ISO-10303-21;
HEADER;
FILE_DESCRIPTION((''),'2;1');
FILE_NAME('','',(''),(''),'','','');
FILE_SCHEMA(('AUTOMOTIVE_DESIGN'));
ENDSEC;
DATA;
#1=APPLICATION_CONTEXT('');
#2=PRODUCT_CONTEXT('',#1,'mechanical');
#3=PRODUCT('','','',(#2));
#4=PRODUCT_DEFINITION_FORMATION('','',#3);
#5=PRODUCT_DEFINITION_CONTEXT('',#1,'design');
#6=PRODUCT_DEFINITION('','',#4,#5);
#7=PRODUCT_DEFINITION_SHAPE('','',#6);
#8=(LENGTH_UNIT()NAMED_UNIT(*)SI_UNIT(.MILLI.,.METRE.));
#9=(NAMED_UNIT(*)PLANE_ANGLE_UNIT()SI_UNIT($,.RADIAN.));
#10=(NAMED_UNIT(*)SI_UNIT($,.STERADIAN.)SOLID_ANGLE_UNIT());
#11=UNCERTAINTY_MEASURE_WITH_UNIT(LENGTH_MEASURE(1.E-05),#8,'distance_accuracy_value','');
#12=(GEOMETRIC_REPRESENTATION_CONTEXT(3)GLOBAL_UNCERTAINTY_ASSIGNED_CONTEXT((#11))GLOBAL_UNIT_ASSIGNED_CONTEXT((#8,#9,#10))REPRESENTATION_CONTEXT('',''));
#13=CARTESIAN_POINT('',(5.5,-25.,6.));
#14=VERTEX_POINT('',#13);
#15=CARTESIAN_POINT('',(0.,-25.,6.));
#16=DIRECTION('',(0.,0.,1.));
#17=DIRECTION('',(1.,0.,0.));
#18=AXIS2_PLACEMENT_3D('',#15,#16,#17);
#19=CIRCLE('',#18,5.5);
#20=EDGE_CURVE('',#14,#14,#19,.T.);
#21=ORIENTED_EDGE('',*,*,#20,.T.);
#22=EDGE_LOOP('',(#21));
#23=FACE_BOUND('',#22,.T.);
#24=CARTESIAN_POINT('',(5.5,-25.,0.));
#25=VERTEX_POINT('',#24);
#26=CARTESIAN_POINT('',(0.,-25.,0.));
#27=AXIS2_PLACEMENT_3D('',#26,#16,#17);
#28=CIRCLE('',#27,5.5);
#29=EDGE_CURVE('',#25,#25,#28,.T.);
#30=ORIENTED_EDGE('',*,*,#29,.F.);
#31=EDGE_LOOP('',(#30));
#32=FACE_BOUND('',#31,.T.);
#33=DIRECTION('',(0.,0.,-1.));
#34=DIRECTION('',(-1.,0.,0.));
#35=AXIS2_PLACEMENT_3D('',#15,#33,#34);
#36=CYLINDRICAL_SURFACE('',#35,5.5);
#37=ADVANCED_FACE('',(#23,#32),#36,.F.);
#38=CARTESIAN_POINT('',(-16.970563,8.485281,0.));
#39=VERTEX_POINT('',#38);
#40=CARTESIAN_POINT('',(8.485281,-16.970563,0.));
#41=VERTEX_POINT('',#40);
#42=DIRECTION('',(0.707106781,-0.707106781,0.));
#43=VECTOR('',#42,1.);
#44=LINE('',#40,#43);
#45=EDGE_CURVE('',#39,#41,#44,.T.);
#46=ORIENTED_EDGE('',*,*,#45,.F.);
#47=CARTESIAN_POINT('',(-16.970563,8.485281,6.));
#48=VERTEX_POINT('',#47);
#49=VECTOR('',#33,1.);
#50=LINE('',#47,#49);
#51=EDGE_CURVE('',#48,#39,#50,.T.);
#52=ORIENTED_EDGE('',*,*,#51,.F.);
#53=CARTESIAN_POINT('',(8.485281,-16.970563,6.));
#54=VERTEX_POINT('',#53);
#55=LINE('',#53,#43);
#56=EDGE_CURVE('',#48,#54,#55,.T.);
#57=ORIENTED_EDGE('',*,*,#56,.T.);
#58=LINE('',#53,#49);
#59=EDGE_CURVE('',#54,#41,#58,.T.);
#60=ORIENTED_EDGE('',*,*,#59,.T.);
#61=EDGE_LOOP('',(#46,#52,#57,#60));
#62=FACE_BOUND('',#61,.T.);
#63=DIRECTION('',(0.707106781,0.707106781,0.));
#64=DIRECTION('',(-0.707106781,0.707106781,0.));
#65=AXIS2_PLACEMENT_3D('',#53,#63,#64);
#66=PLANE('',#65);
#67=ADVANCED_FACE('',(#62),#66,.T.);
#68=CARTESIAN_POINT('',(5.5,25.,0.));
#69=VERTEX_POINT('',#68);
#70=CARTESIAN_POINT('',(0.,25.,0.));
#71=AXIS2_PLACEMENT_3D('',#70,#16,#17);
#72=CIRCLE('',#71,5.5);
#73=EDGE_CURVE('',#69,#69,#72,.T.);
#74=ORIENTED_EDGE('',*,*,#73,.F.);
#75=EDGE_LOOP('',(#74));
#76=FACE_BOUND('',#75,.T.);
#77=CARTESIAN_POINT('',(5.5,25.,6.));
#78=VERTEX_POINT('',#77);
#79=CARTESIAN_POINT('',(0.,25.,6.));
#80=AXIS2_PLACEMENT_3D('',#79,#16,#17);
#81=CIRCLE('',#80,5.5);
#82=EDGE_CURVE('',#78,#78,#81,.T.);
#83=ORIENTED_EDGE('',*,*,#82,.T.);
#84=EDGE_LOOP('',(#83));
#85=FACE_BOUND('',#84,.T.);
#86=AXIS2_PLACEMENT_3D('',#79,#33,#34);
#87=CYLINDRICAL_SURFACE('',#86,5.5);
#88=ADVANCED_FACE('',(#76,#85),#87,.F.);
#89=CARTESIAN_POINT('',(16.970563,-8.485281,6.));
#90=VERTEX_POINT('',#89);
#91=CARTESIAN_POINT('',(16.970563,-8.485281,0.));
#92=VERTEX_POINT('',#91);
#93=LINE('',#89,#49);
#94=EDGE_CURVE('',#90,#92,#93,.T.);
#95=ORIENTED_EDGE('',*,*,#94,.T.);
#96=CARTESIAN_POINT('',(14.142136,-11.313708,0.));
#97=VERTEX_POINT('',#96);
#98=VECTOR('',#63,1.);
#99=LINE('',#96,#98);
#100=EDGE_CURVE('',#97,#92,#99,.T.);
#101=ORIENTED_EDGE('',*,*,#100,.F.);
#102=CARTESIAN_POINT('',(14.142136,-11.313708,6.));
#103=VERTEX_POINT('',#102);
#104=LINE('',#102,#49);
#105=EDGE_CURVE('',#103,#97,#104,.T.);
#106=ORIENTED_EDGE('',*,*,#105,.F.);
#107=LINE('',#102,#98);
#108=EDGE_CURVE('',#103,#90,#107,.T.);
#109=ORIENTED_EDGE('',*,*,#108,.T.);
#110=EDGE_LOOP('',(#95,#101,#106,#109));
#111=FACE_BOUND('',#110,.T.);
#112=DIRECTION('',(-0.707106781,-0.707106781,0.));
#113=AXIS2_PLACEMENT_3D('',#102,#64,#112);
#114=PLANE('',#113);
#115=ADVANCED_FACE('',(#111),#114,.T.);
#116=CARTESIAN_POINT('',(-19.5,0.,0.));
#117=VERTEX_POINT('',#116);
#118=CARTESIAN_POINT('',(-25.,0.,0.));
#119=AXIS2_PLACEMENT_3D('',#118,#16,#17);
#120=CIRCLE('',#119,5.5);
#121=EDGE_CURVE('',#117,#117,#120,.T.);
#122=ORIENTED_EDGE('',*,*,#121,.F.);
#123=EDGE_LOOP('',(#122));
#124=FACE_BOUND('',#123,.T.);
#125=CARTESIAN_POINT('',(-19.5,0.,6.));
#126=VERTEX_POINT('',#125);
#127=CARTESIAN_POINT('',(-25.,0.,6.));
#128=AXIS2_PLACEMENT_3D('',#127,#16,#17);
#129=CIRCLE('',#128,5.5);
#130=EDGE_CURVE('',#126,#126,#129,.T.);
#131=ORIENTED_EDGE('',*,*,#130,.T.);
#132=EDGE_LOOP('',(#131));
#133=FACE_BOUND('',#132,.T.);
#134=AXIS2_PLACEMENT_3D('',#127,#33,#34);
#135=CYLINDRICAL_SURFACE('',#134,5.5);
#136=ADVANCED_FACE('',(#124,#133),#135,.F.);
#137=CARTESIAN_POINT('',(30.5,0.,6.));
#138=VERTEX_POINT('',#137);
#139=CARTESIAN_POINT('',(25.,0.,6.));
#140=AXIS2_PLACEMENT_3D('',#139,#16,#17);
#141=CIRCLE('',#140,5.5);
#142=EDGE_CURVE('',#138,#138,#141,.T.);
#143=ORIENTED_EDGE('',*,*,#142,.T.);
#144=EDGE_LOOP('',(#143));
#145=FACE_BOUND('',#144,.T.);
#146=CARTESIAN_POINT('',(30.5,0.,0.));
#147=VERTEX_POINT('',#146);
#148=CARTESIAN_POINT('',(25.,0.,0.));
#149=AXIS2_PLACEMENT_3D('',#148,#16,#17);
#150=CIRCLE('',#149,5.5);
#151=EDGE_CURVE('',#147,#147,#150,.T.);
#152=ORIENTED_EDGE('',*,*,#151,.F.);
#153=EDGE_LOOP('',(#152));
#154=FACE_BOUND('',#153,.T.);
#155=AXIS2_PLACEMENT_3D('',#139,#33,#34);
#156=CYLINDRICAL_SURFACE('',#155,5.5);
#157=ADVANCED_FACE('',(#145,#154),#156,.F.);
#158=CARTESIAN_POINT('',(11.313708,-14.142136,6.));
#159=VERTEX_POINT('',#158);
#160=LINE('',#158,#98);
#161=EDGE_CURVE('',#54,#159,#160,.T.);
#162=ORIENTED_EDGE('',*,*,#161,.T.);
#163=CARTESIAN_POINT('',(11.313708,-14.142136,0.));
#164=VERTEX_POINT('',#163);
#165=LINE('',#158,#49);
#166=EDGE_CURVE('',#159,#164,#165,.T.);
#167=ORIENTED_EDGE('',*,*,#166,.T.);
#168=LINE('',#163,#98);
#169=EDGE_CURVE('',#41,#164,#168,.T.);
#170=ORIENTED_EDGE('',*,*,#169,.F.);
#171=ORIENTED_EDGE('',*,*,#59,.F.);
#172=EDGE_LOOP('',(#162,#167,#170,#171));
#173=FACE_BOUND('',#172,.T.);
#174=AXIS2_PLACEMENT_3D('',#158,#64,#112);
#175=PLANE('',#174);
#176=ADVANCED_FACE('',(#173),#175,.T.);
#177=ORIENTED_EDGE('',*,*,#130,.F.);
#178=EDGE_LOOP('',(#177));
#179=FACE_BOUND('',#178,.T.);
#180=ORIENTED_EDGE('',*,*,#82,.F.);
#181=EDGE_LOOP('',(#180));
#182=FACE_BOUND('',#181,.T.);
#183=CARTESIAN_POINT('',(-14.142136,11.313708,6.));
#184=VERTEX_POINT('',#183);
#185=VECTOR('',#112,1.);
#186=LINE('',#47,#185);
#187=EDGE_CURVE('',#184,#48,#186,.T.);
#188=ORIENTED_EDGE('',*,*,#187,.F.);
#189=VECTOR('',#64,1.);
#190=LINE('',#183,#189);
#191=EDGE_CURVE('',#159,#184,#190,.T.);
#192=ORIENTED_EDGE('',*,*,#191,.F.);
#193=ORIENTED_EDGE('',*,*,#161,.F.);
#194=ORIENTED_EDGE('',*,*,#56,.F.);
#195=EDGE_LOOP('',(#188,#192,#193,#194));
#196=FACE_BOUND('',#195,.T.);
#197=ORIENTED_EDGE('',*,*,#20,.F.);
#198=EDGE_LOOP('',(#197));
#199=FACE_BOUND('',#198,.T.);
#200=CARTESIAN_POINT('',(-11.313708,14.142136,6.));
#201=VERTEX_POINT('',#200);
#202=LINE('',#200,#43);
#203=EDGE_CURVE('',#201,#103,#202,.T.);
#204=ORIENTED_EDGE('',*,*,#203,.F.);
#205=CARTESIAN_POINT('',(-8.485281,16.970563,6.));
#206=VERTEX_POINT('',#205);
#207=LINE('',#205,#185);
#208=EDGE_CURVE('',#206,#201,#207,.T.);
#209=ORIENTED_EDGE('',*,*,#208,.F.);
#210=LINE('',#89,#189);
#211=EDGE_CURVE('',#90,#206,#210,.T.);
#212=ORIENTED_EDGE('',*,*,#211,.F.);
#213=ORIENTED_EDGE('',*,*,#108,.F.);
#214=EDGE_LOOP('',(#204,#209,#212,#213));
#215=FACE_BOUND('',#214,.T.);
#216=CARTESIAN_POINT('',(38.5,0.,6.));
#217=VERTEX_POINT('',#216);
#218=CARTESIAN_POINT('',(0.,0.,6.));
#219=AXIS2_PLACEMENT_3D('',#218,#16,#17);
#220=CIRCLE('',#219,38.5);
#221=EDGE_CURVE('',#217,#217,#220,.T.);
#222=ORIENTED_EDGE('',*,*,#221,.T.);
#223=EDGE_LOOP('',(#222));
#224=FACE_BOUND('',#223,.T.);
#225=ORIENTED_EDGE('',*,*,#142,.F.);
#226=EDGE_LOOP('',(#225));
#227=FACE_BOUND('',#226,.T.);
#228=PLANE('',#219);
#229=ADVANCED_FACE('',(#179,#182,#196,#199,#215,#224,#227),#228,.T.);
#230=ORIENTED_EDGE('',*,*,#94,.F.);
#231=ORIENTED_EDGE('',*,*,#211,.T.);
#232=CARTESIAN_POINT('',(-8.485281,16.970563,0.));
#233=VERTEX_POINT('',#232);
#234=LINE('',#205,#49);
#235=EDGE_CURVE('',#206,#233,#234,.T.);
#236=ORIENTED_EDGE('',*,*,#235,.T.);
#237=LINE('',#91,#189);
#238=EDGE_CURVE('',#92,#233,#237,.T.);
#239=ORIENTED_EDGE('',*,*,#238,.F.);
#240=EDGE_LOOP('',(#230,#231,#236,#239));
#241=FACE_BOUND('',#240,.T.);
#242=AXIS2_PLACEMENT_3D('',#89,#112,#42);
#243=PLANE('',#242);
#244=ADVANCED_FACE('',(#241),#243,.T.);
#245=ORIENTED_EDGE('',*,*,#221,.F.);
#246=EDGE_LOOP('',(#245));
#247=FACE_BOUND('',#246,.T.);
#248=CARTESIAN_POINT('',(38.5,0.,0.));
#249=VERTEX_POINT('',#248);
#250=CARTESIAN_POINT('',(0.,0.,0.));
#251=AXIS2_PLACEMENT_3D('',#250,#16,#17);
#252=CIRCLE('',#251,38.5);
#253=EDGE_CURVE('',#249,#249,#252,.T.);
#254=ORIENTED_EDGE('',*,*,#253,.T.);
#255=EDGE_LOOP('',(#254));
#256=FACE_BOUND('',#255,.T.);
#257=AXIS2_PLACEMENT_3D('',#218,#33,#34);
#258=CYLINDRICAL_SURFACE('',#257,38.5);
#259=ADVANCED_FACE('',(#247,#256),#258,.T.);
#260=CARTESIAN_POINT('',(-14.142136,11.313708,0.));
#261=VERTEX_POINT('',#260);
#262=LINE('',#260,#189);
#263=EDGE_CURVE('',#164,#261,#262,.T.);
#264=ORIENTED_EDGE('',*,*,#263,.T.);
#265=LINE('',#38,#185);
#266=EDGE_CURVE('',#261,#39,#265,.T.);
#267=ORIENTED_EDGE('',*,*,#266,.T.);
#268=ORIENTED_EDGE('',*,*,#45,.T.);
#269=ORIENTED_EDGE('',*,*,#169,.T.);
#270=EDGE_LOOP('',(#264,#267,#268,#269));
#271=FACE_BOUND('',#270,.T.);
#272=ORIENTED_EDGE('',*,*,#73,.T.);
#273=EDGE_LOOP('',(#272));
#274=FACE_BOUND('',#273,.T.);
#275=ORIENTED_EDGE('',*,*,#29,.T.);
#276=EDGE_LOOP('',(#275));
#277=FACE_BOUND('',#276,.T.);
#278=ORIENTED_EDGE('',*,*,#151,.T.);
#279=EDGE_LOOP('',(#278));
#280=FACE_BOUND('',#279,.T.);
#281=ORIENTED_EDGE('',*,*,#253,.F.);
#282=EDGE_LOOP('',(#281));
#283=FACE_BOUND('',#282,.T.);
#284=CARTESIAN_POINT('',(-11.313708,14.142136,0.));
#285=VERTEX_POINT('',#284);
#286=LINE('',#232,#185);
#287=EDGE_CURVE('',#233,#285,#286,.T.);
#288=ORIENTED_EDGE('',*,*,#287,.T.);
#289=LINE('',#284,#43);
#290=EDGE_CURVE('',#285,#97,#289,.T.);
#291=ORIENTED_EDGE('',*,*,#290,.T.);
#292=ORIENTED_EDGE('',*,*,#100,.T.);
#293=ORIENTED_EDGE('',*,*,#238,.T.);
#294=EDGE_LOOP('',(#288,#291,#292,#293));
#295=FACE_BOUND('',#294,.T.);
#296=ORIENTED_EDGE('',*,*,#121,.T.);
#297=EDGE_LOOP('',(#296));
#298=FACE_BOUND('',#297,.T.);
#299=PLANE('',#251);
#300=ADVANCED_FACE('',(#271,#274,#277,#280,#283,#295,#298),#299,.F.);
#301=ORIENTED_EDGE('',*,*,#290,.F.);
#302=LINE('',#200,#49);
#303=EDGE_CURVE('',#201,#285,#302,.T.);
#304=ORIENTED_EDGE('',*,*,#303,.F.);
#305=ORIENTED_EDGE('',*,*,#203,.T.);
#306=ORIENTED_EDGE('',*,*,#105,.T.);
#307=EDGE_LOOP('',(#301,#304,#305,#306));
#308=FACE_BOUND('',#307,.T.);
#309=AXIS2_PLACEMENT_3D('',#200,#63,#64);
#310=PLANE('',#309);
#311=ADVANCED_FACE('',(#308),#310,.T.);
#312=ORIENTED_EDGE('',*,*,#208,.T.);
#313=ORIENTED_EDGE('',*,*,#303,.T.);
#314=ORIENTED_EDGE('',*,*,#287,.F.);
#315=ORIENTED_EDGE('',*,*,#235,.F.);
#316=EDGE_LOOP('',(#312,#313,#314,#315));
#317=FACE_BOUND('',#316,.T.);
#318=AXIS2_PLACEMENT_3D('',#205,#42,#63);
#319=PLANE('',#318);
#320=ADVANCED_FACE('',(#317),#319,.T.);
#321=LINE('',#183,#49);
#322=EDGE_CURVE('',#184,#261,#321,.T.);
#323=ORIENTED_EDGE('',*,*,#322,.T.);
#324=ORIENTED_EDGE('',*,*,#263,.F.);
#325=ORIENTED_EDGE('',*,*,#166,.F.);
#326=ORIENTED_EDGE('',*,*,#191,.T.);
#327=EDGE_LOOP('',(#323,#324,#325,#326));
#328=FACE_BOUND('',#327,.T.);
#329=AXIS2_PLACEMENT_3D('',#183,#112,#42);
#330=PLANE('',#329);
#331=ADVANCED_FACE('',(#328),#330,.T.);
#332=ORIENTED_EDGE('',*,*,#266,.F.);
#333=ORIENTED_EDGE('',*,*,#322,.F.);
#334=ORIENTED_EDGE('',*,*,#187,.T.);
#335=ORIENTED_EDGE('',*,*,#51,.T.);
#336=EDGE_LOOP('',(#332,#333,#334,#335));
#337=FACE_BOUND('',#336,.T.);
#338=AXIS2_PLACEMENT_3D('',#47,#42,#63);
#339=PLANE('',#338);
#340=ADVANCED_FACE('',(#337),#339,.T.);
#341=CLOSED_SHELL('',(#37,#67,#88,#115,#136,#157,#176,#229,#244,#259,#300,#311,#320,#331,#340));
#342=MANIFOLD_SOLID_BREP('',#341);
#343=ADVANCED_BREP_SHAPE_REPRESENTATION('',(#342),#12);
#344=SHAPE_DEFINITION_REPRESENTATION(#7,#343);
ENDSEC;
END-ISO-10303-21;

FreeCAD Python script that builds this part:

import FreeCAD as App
import Part
import Sketcher
from FreeCAD import Vector
Q = App.Units.Quantity


def add_polygon(sketch, points):
    """Adds a closed chain of lines whose ends are joined by coincident constraints."""
    first, n = sketch.GeometryCount, len(points)
    for a, b in zip(points, points[1:] + points[:1]):
        sketch.addGeometry(Part.LineSegment(App.Vector(*a, 0), App.Vector(*b, 0)), False)
    for i in range(n):
        sketch.addConstraint(Sketcher.Constraint("Coincident", first + i, 2, first + (i + 1) % n, 1))

doc = App.newDocument("Part")
body = doc.addObject("PartDesign::Body", "Body")

# Sketch on XY plane
sketch1 = doc.addObject("Sketcher::SketchObject", "Sketch")
body.addObject(sketch1)
sketch1.AttachmentSupport = (doc.XY_Plane, [""])
sketch1.MapMode = "FlatFace"
sketch1.addGeometry(Part.Circle(Vector(0, 0, 0), Vector(0, 0, 1), 38.5), False)  # 0
add_polygon(sketch1, [(8.5, -17), (-17, 8.5), (-14.1, 11.3), (11.3, -14.1)])  # lines 1-4
sketch1.addGeometry(Part.Circle(Vector(0, -25, 0), Vector(0, 0, 1), 5.5), False)  # 5
sketch1.addGeometry(Part.Circle(Vector(-25, 0, 0), Vector(0, 0, 1), 5.5), False)  # 6
add_polygon(sketch1, [(14.1, -11.3), (-11.3, 14.1), (-8.5, 17), (17, -8.5)])  # lines 7-10
sketch1.addGeometry(Part.Circle(Vector(25, 0, 0), Vector(0, 0, 1), 5.5), False)  # 11
sketch1.addGeometry(Part.Circle(Vector(0, 25, 0), Vector(0, 0, 1), 5.5), False)  # 12
sketch1.addConstraint([
    Sketcher.Constraint("Coincident", 0, 3, -1, 1),
    Sketcher.Constraint("Equal", 5, 6),
    Sketcher.Constraint("Equal", 6, 11),
    Sketcher.Constraint("Equal", 11, 12),
    Sketcher.Constraint("Symmetric", 6, 3, 11, 3, -1, 1),
    Sketcher.Constraint("Symmetric", 5, 3, 12, 3, -1, 1),
    Sketcher.Constraint("Symmetric", 3, 2, 7, 2, -1, 1),
    Sketcher.Constraint("Symmetric", 4, 2, 8, 2, -1, 1),
    Sketcher.Constraint("Symmetric", 1, 2, 9, 2, -1, 1),
    Sketcher.Constraint("Symmetric", 2, 2, 10, 2, -1, 1),
    Sketcher.Constraint("PointOnObject", 5, 3, -2),
    Sketcher.Constraint("PointOnObject", 6, 3, -1),
    Sketcher.Constraint("Perpendicular", 1, 2),
    Sketcher.Constraint("Perpendicular", 2, 3),
    Sketcher.Constraint("Perpendicular", 3, 4),
    Sketcher.Constraint("Diameter", 0, 77.0),
    Sketcher.Constraint("Diameter", 5, 11.0),
    Sketcher.Constraint("Angle", 1, Q("135 deg")),
    Sketcher.Constraint("Distance", 1, 36.0),
    Sketcher.Constraint("Distance", 2, 4.0),
    Sketcher.Constraint("DistanceY", 5, 3, -1, 1, 25.0),
    Sketcher.Constraint("DistanceX", 6, 3, -1, 1, 25.0),
    Sketcher.Constraint("DistanceY", -1, 1, 1, 2, 8.485281),
    Sketcher.Constraint("DistanceX", -1, 1, 3, 2, 11.313708),
])
pad1 = doc.addObject("PartDesign::Pad", "Pad")
body.addObject(pad1)
pad1.Profile = sketch1
pad1.Length = 6

doc.recompute()
